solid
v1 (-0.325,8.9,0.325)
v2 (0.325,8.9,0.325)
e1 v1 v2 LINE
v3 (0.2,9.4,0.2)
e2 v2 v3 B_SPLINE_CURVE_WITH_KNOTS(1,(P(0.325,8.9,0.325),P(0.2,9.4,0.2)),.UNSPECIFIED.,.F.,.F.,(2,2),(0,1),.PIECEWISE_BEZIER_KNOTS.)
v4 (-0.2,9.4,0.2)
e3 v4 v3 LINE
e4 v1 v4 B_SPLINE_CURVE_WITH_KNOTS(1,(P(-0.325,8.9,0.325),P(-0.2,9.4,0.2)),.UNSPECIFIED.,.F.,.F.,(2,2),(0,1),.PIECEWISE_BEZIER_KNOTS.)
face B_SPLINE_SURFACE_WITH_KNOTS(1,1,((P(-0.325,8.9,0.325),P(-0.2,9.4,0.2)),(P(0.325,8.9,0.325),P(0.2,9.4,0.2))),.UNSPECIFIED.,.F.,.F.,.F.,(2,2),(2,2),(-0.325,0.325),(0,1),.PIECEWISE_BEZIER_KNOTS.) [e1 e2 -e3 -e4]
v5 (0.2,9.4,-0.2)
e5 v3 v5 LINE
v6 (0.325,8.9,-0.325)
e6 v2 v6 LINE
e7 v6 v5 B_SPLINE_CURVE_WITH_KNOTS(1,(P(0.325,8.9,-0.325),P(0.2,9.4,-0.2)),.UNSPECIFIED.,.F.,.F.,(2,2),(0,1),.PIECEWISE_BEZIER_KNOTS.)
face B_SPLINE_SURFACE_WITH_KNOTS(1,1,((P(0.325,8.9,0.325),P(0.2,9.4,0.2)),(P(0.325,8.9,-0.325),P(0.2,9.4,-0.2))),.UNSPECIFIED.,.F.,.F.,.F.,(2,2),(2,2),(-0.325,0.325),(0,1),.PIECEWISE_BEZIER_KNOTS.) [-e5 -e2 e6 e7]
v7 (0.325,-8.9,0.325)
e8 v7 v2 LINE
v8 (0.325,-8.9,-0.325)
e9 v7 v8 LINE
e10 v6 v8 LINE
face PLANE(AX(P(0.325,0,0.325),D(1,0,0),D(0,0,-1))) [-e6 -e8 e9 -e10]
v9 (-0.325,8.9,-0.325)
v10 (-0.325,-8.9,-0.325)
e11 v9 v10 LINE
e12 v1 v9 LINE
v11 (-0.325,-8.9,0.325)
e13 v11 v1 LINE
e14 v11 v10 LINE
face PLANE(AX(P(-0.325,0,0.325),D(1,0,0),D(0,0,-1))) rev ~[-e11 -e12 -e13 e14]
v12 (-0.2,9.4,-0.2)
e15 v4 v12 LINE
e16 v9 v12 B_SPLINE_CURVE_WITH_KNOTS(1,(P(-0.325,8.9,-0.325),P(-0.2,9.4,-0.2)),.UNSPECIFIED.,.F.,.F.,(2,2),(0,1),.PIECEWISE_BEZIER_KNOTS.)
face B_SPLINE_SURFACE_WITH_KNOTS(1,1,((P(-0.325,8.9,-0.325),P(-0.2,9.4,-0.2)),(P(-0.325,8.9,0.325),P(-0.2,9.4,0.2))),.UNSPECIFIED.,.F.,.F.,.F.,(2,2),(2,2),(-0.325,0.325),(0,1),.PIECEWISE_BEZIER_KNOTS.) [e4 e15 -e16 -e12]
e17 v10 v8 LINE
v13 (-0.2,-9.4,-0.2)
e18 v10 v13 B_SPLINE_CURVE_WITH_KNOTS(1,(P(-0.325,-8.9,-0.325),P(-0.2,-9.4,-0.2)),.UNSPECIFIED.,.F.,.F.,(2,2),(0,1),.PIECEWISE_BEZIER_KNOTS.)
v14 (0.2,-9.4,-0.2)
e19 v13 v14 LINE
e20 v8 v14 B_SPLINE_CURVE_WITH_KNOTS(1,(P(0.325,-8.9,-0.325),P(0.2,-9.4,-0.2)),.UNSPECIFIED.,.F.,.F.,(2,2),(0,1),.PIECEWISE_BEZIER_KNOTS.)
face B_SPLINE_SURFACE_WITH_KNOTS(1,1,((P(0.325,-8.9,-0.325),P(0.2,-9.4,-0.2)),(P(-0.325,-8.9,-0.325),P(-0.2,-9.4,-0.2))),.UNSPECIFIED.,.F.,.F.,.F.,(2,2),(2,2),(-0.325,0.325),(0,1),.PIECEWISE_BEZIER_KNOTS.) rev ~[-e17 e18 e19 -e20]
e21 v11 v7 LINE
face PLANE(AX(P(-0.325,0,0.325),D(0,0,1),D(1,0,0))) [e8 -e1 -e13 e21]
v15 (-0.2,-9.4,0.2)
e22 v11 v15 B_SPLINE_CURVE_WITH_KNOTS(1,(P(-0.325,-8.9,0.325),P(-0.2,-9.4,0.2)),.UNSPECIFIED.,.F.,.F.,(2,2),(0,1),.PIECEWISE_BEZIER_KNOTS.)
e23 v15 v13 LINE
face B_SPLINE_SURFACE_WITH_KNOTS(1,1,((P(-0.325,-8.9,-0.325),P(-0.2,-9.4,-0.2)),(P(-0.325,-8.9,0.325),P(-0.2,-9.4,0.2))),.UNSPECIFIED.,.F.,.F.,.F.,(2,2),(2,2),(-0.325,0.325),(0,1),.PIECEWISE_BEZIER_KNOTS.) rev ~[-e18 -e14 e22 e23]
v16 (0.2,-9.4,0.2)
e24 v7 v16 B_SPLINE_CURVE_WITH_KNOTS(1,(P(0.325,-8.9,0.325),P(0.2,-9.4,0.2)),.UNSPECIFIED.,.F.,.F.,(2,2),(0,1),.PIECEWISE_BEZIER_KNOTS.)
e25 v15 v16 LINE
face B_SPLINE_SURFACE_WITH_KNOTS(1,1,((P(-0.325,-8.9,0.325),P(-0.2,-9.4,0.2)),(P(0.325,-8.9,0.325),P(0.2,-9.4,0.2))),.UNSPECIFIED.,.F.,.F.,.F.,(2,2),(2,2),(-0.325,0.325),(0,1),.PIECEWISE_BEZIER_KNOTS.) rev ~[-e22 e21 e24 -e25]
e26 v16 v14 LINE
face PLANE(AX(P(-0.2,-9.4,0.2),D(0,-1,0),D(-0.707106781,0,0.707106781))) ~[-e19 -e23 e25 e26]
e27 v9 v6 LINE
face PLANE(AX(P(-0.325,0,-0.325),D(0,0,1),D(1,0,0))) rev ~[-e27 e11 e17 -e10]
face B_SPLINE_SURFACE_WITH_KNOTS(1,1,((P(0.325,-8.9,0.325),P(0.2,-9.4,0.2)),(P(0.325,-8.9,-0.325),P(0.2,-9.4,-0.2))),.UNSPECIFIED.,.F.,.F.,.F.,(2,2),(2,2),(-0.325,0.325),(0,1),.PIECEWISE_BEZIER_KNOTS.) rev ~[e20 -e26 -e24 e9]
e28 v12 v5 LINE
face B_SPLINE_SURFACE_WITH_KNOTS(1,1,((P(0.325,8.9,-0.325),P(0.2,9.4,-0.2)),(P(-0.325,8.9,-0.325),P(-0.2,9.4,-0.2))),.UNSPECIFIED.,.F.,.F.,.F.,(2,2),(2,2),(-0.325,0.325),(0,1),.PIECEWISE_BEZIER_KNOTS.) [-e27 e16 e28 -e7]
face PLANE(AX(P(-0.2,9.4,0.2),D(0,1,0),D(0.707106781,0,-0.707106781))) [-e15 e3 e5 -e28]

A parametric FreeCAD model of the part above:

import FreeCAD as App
import Part
import Sketcher
from FreeCAD import Vector

doc = App.newDocument("Part")
body = doc.addObject("PartDesign::Body", "Body")

# Sketch on XZ plane
sketch1 = body.newObject("Sketcher::SketchObject", "Sketch")
sketch1.AttachmentSupport = (doc.getObject("XZ_Plane"), [""])
sketch1.MapMode = "FlatFace"
sketch1.addGeometry(Part.LineSegment(Vector(-0.3, -0.3, 0), Vector(-0.3, 0.3, 0)), False)
sketch1.addGeometry(Part.LineSegment(Vector(-0.3, 0.3, 0), Vector(0.3, 0.3, 0)), False)
sketch1.addGeometry(Part.LineSegment(Vector(0.3, 0.3, 0), Vector(0.3, -0.3, 0)), False)
sketch1.addGeometry(Part.LineSegment(Vector(0.3, -0.3, 0), Vector(-0.3, -0.3, 0)), False)
sketch1.addConstraint(Sketcher.Constraint("Coincident", 0, 2, 1, 1))
sketch1.addConstraint(Sketcher.Constraint("Coincident", 1, 2, 2, 1))
sketch1.addConstraint(Sketcher.Constraint("Coincident", 2, 2, 3, 1))
sketch1.addConstraint(Sketcher.Constraint("Coincident", 3, 2, 0, 1))
sketch1.addConstraint(Sketcher.Constraint("Vertical", 0))
sketch1.addConstraint(Sketcher.Constraint("Horizontal", 1))
sketch1.addConstraint(Sketcher.Constraint("Vertical", 2))
sketch1.addConstraint(Sketcher.Constraint("Horizontal", 3))
sketch1.addConstraint(Sketcher.Constraint("Symmetric", 0, 2, 2, 2, -1, 1))
sketch1.addConstraint(Sketcher.Constraint("Equal", 3, 0))
sketch1.addConstraint(Sketcher.Constraint("DistanceX", 1, 1, 1, 2, 0.65))
pad1 = body.newObject("PartDesign::Pad", "Pad")
pad1.Profile = sketch1
pad1.Length = 18.8
pad1.Midplane = True

# Sketch on XZ plane
sketch2 = body.newObject("Sketcher::SketchObject", "Sketch001")
sketch2.AttachmentSupport = (doc.getObject("XZ_Plane"), [""])
sketch2.MapMode = "FlatFace"
sketch2.AttachmentOffset = App.Placement(Vector(0, 0, -8.9), App.Rotation())
sketch2.addGeometry(Part.LineSegment(Vector(-0.3, -0.3, 0), Vector(-0.3, 0.3, 0)), False)
sketch2.addGeometry(Part.LineSegment(Vector(-0.3, 0.3, 0), Vector(0.3, 0.3, 0)), False)
sketch2.addGeometry(Part.LineSegment(Vector(0.3, 0.3, 0), Vector(0.3, -0.3, 0)), False)
sketch2.addGeometry(Part.LineSegment(Vector(0.3, -0.3, 0), Vector(-0.3, -0.3, 0)), False)
sketch2.addConstraint(Sketcher.Constraint("Coincident", 0, 2, 1, 1))
sketch2.addConstraint(Sketcher.Constraint("Coincident", 1, 2, 2, 1))
sketch2.addConstraint(Sketcher.Constraint("Coincident", 2, 2, 3, 1))
sketch2.addConstraint(Sketcher.Constraint("Coincident", 3, 2, 0, 1))
sketch2.addConstraint(Sketcher.Constraint("Vertical", 0))
sketch2.addConstraint(Sketcher.Constraint("Horizontal", 1))
sketch2.addConstraint(Sketcher.Constraint("Vertical", 2))
sketch2.addConstraint(Sketcher.Constraint("Horizontal", 3))
sketch2.addConstraint(Sketcher.Constraint("Symmetric", 0, 2, 2, 2, -1, 1))
sketch2.addConstraint(Sketcher.Constraint("Equal", 3, 0))
sketch2.addConstraint(Sketcher.Constraint("DistanceX", 1, 1, 1, 2, 0.65))
pocket1 = body.newObject("PartDesign::Pocket", "Pocket")
pocket1.Profile = sketch2
pocket1.Length = 0.5

# Sketch on XZ plane
sketch3 = body.newObject("Sketcher::SketchObject", "Sketch002")
sketch3.AttachmentSupport = (doc.getObject("XZ_Plane"), [""])
sketch3.MapMode = "FlatFace"
sketch3.AttachmentOffset = App.Placement(Vector(0, 0, -8.9), App.Rotation())
sketch3.addGeometry(Part.LineSegment(Vector(-0.3, -0.3, 0), Vector(-0.3, 0.3, 0)), False)
sketch3.addGeometry(Part.LineSegment(Vector(-0.3, 0.3, 0), Vector(0.3, 0.3, 0)), False)
sketch3.addGeometry(Part.LineSegment(Vector(0.3, 0.3, 0), Vector(0.3, -0.3, 0)), False)
sketch3.addGeometry(Part.LineSegment(Vector(0.3, -0.3, 0), Vector(-0.3, -0.3, 0)), False)
sketch3.addConstraint(Sketcher.Constraint("Coincident", 0, 2, 1, 1))
sketch3.addConstraint(Sketcher.Constraint("Coincident", 1, 2, 2, 1))
sketch3.addConstraint(Sketcher.Constraint("Coincident", 2, 2, 3, 1))
sketch3.addConstraint(Sketcher.Constraint("Coincident", 3, 2, 0, 1))
sketch3.addConstraint(Sketcher.Constraint("Vertical", 0))
sketch3.addConstraint(Sketcher.Constraint("Horizontal", 1))
sketch3.addConstraint(Sketcher.Constraint("Vertical", 2))
sketch3.addConstraint(Sketcher.Constraint("Horizontal", 3))
sketch3.addConstraint(Sketcher.Constraint("Symmetric", 0, 2, 2, 2, -1, 1))
sketch3.addConstraint(Sketcher.Constraint("Equal", 3, 0))
sketch3.addConstraint(Sketcher.Constraint("DistanceX", 1, 1, 1, 2, 0.65))

# Sketch on XZ plane
sketch4 = body.newObject("Sketcher::SketchObject", "Sketch003")
sketch4.AttachmentSupport = (doc.getObject("XZ_Plane"), [""])
sketch4.MapMode = "FlatFace"
sketch4.AttachmentOffset = App.Placement(Vector(0, 0, -9.4), App.Rotation())
sketch4.addGeometry(Part.LineSegment(Vector(-0.2, -0.2, 0), Vector(-0.2, 0.2, 0)), False)
sketch4.addGeometry(Part.LineSegment(Vector(-0.2, 0.2, 0), Vector(0.2, 0.2, 0)), False)
sketch4.addGeometry(Part.LineSegment(Vector(0.2, 0.2, 0), Vector(0.2, -0.2, 0)), False)
sketch4.addGeometry(Part.LineSegment(Vector(0.2, -0.2, 0), Vector(-0.2, -0.2, 0)), False)
sketch4.addConstraint(Sketcher.Constraint("Coincident", 0, 2, 1, 1))
sketch4.addConstraint(Sketcher.Constraint("Coincident", 1, 2, 2, 1))
sketch4.addConstraint(Sketcher.Constraint("Coincident", 2, 2, 3, 1))
sketch4.addConstraint(Sketcher.Constraint("Coincident", 3, 2, 0, 1))
sketch4.addConstraint(Sketcher.Constraint("Vertical", 0))
sketch4.addConstraint(Sketcher.Constraint("Horizontal", 1))
sketch4.addConstraint(Sketcher.Constraint("Vertical", 2))
sketch4.addConstraint(Sketcher.Constraint("Horizontal", 3))
sketch4.addConstraint(Sketcher.Constraint("Symmetric", 0, 2, 2, 2, -1, 1))
sketch4.addConstraint(Sketcher.Constraint("Equal", 3, 0))
sketch4.addConstraint(Sketcher.Constraint("DistanceX", 1, 1, 1, 2, 0.4))

additiveloft = body.newObject("PartDesign::AdditiveLoft", "AdditiveLoft")
additiveloft.Profile = sketch3
additiveloft.Sections = [sketch4]
doc.recompute()

mirrored = body.newObject("PartDesign::Mirrored", "Mirrored")
mirrored.Originals = [pocket1, additiveloft]
mirrored.MirrorPlane = (doc.getObject("XZ_Plane"), [""])
body.Tip = mirrored

doc.recompute()
